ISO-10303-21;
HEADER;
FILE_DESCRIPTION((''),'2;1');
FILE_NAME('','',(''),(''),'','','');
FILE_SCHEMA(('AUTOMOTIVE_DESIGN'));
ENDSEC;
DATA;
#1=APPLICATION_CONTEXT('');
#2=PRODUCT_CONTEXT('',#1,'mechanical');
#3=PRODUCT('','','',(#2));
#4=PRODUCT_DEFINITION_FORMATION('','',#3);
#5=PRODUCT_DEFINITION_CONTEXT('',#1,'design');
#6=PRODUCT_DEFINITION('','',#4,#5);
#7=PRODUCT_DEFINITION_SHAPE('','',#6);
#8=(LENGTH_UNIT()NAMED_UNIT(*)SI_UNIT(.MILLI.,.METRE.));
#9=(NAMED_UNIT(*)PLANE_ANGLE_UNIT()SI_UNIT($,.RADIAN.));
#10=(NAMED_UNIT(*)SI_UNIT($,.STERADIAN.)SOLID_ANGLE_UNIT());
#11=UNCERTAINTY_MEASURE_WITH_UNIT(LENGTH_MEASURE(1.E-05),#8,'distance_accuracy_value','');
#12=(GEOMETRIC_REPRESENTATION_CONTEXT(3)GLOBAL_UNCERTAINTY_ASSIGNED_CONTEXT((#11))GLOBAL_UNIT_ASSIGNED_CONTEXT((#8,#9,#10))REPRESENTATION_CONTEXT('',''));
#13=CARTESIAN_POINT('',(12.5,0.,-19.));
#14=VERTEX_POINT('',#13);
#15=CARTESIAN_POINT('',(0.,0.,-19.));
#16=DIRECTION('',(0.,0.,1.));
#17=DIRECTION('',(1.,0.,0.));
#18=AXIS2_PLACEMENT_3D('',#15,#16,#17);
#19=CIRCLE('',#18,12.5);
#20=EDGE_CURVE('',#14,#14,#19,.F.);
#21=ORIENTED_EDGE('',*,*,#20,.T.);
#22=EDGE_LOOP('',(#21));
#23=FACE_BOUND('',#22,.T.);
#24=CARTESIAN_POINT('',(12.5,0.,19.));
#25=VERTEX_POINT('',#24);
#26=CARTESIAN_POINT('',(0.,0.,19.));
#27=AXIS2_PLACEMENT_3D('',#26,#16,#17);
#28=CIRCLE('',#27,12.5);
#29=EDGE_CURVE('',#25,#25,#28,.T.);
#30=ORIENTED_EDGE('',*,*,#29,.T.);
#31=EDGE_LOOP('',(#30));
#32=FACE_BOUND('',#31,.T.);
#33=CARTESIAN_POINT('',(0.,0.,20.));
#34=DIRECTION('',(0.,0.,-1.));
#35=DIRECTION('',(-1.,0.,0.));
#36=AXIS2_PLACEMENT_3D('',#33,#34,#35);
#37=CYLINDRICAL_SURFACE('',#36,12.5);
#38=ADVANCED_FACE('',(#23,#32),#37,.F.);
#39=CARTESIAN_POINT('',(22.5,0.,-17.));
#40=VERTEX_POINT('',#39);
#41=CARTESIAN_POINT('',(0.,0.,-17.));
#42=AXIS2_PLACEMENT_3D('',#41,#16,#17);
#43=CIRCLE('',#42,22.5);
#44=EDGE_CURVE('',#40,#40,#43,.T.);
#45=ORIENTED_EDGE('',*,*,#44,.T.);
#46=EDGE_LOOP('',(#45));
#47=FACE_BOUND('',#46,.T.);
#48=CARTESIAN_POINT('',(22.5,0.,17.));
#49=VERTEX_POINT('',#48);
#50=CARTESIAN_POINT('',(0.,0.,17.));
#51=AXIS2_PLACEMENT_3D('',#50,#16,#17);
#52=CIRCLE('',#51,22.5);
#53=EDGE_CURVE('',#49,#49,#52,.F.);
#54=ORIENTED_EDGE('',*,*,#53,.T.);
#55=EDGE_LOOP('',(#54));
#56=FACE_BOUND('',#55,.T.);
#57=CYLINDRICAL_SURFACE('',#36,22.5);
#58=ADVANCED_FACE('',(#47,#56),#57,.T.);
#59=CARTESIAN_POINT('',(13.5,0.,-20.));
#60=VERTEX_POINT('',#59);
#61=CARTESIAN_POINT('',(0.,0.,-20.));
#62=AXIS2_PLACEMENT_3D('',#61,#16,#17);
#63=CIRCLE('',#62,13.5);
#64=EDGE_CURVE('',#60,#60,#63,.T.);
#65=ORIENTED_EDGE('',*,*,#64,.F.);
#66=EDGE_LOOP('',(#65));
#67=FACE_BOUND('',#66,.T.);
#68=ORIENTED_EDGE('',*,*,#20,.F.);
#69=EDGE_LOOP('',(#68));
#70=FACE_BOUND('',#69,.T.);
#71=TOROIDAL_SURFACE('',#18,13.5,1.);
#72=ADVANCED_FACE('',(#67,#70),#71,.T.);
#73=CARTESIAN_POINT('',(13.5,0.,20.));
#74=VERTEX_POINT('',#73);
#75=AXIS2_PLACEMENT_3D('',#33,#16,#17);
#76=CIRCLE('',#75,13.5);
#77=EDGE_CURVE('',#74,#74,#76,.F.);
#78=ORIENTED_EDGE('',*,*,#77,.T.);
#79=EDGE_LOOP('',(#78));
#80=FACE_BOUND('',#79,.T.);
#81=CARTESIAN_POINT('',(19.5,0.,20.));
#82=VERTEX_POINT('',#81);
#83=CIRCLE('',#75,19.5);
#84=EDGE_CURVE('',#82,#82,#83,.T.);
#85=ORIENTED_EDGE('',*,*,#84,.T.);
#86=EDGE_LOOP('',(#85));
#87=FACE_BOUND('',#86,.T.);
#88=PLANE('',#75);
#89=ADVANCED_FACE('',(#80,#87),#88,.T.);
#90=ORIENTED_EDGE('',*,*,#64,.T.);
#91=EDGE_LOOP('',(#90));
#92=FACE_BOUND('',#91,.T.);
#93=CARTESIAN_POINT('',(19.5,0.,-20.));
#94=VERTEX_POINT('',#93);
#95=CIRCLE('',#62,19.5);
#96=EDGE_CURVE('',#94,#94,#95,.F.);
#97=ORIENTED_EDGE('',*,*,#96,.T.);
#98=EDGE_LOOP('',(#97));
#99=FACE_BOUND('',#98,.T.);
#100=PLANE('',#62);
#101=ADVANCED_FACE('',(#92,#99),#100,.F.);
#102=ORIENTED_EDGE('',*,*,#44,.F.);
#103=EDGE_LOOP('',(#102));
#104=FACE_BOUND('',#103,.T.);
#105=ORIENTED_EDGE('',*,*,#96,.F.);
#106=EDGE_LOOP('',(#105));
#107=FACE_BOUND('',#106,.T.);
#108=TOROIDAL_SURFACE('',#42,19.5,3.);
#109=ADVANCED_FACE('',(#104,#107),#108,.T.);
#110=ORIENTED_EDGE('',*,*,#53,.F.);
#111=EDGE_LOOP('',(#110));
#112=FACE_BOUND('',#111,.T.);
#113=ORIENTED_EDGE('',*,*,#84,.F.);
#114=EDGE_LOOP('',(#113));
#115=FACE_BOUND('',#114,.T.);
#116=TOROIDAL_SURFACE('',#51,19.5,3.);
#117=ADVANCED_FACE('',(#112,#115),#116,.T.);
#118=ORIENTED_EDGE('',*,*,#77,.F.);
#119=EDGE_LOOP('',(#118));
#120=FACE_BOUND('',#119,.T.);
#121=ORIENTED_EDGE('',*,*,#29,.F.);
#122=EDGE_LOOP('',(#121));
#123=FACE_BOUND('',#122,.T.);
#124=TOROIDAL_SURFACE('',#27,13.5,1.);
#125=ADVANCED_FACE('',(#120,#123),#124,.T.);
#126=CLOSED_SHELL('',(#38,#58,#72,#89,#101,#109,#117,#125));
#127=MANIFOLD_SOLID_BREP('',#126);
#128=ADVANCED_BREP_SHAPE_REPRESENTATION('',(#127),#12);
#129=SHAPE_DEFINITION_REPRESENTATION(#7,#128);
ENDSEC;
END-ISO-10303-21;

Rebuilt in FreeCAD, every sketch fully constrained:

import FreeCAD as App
import Part
import Sketcher

V = App.Vector
Q = App.Units.Quantity


def edges_at(feature, points):
    """Names of the edges that pass closest to the given points."""
    edges = feature.Shape.Edges
    near = lambda p: min(range(len(edges)), key=lambda i: edges[i].distToShape(Part.Vertex(*p))[0])
    return sorted({f"Edge{near(p) + 1}" for p in points})

doc = App.newDocument("Part")
body = doc.addObject("PartDesign::Body", "Body")

# Sketch on XY plane
sketch1 = body.newObject("Sketcher::SketchObject", "Sketch")
sketch1.AttachmentSupport = (doc.getObject("XY_Plane"), [""])
sketch1.MapMode = "FlatFace"
sketch1.addGeometry(Part.Circle(V(0, 0, 0), V(0, 0, 1), 22), False)
sketch1.addGeometry(Part.Circle(V(0, 0, 0), V(0, 0, 1), 12), False)
sketch1.addConstraint(Sketcher.Constraint("Coincident", 0, 3, -1, 1))
sketch1.addConstraint(Sketcher.Constraint("Coincident", 1, 3, -1, 1))
sketch1.addConstraint(Sketcher.Constraint("Diameter", 0, Q("45 mm")))
sketch1.addConstraint(Sketcher.Constraint("Diameter", 1, Q("25 mm")))
pad1 = body.newObject("PartDesign::Pad", "Pad")
pad1.Profile = sketch1
pad1.Length = 40
pad1.Midplane = True
doc.recompute()

fillet = body.newObject("PartDesign::Fillet", "Fillet")
fillet.Base = (pad1, edges_at(pad1, [(-22.5, 0, 20), (-22.5, 0, -20)]))
fillet.Radius = 3
doc.recompute()

fillet2 = body.newObject("PartDesign::Fillet", "Fillet001")
fillet2.Base = (fillet, edges_at(fillet, [(-12.5, 0, -20), (-12.5, 0, 20)]))
fillet2.Radius = 1

doc.recompute()
